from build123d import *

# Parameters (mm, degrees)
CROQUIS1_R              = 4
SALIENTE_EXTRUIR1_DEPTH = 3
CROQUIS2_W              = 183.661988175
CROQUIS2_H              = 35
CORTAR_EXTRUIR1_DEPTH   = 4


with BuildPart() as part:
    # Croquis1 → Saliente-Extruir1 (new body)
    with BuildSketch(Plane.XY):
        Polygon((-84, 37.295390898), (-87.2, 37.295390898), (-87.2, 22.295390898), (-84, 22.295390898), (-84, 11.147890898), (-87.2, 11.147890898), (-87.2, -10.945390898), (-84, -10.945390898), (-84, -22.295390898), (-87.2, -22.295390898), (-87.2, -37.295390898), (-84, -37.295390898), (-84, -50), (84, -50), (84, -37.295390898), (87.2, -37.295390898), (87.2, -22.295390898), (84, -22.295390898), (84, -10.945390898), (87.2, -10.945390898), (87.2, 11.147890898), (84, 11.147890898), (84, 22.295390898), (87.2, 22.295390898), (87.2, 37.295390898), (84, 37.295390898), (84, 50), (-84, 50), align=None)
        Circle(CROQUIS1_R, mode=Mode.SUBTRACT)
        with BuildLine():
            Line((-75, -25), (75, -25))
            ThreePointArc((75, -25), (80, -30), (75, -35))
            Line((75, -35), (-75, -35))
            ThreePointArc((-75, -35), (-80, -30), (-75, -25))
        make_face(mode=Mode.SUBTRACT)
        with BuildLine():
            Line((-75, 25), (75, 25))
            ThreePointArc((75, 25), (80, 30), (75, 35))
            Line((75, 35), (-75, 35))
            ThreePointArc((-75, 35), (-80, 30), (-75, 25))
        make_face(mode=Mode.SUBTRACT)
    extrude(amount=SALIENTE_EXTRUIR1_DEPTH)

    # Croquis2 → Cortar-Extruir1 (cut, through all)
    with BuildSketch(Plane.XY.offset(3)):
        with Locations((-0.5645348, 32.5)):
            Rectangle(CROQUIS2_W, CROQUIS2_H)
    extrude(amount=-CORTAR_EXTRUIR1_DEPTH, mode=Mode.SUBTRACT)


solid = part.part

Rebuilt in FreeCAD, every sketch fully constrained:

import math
import FreeCAD as App
import Part
import Sketcher

V = App.Vector


def add_polygon(sketch, points):
    """Adds a closed chain of lines whose ends are joined by coincident constraints."""
    first, n = sketch.GeometryCount, len(points)
    for a, b in zip(points, points[1:] + points[:1]):
        sketch.addGeometry(Part.LineSegment(App.Vector(*a, 0), App.Vector(*b, 0)), False)
    for i in range(n):
        sketch.addConstraint(Sketcher.Constraint("Coincident", first + i, 2, first + (i + 1) % n, 1))

doc = App.newDocument("Part")
body = doc.addObject("PartDesign::Body", "Body")

sketch1 = body.newObject("Sketcher::SketchObject", "Sketch")
sketch1.AttachmentSupport = (doc.getObject("XY_Plane"), [""])
sketch1.MapMode = "FlatFace"
add_polygon(sketch1, [(-84, 37.3), (-87.2, 37.3), (-87.2, 22.3), (-84, 22.3), (-84, 11.1), (-87.2, 11.1), (-87.2, -10.9), (-84, -10.9), (-84, -22.3), (-87.2, -22.3), (-87.2, -37.3), (-84, -37.3), (-84, -50), (84, -50), (84, -37.3), (87.2, -37.3), (87.2, -22.3), (84, -22.3), (84, -10.9), (87.2, -10.9), (87.2, 11.1), (84, 11.1), (84, 22.3), (87.2, 22.3), (87.2, 37.3), (84, 37.3), (84, 50), (-84, 50)])
sketch1.addGeometry(Part.ArcOfCircle(Part.Circle(V(-75, -30, 0), V(0, 0, 1), 5), math.radians(90), math.radians(270)), False)
sketch1.addGeometry(Part.LineSegment(V(-75, -25, 0), V(75, -25, 0)), False)
sketch1.addGeometry(Part.ArcOfCircle(Part.Circle(V(75, -30, 0), V(0, 0, 1), 5), math.radians(-90), math.radians(90)), False)
sketch1.addGeometry(Part.LineSegment(V(75, -35, 0), V(-75, -35, 0)), False)
sketch1.addGeometry(Part.Circle(V(0, 0, 0), V(0, 0, 1), 4), False)
sketch1.addGeometry(Part.LineSegment(V(75, 25, 0), V(-75, 25, 0)), False)
sketch1.addGeometry(Part.ArcOfCircle(Part.Circle(V(-75, 30, 0), V(0, 0, 1), 5), math.radians(90), math.radians(270)), False)
sketch1.addGeometry(Part.LineSegment(V(-75, 35, 0), V(75, 35, 0)), False)
sketch1.addGeometry(Part.ArcOfCircle(Part.Circle(V(75, 30, 0), V(0, 0, 1), 5), math.radians(-90), math.radians(90)), False)
sketch1.addConstraint(Sketcher.Constraint("Tangent", 28, 1, 29, 1))
sketch1.addConstraint(Sketcher.Constraint("Tangent", 29, 2, 30, 2))
sketch1.addConstraint(Sketcher.Constraint("Tangent", 30, 1, 31, 1))
sketch1.addConstraint(Sketcher.Constraint("Tangent", 31, 2, 28, 2))
sketch1.addConstraint(Sketcher.Constraint("Tangent", 33, 2, 34, 2))
sketch1.addConstraint(Sketcher.Constraint("Tangent", 34, 1, 35, 1))
sketch1.addConstraint(Sketcher.Constraint("Tangent", 35, 2, 36, 2))
sketch1.addConstraint(Sketcher.Constraint("Tangent", 36, 1, 33, 1))
sketch1.addConstraint(Sketcher.Constraint("Horizontal", 0))
sketch1.addConstraint(Sketcher.Constraint("Vertical", 1))
sketch1.addConstraint(Sketcher.Constraint("Horizontal", 2))
sketch1.addConstraint(Sketcher.Constraint("Vertical", 3))
sketch1.addConstraint(Sketcher.Constraint("Horizontal", 4))
sketch1.addConstraint(Sketcher.Constraint("Vertical", 5))
sketch1.addConstraint(Sketcher.Constraint("Horizontal", 6))
sketch1.addConstraint(Sketcher.Constraint("Vertical", 7))
sketch1.addConstraint(Sketcher.Constraint("Horizontal", 8))
sketch1.addConstraint(Sketcher.Constraint("Vertical", 9))
sketch1.addConstraint(Sketcher.Constraint("Horizontal", 10))
sketch1.addConstraint(Sketcher.Constraint("Vertical", 11))
sketch1.addConstraint(Sketcher.Constraint("Horizontal", 12))
sketch1.addConstraint(Sketcher.Constraint("Vertical", 13))
sketch1.addConstraint(Sketcher.Constraint("Horizontal", 14))
sketch1.addConstraint(Sketcher.Constraint("Vertical", 15))
sketch1.addConstraint(Sketcher.Constraint("Horizontal", 16))
sketch1.addConstraint(Sketcher.Constraint("Vertical", 17))
sketch1.addConstraint(Sketcher.Constraint("Horizontal", 18))
sketch1.addConstraint(Sketcher.Constraint("Vertical", 19))
sketch1.addConstraint(Sketcher.Constraint("Horizontal", 20))
sketch1.addConstraint(Sketcher.Constraint("Vertical", 21))
sketch1.addConstraint(Sketcher.Constraint("Horizontal", 22))
sketch1.addConstraint(Sketcher.Constraint("Vertical", 23))
sketch1.addConstraint(Sketcher.Constraint("Horizontal", 24))
sketch1.addConstraint(Sketcher.Constraint("Vertical", 25))
sketch1.addConstraint(Sketcher.Constraint("Horizontal", 26))
sketch1.addConstraint(Sketcher.Constraint("Vertical", 27))
sketch1.addConstraint(Sketcher.Constraint("Horizontal", 29))
sketch1.addConstraint(Sketcher.Constraint("Horizontal", 31))
sketch1.addConstraint(Sketcher.Constraint("Horizontal", 33))
sketch1.addConstraint(Sketcher.Constraint("Horizontal", 35))
sketch1.addConstraint(Sketcher.Constraint("Coincident", 32, 3, -1, 1))
sketch1.addConstraint(Sketcher.Constraint("Equal", 30, 34))
sketch1.addConstraint(Sketcher.Constraint("Symmetric", 30, 3, 34, 3, -1, 1))
sketch1.addConstraint(Sketcher.Constraint("Symmetric", 0, 2, 14, 2, -1, 1))
sketch1.addConstraint(Sketcher.Constraint("Symmetric", 2, 2, 16, 2, -1, 1))
sketch1.addConstraint(Sketcher.Constraint("Symmetric", 7, 2, 21, 2, -1, 1))
sketch1.addConstraint(Sketcher.Constraint("Symmetric", 9, 2, 23, 2, -1, 1))
sketch1.addConstraint(Sketcher.Constraint("Symmetric", 11, 2, 25, 2, -1, 1))
sketch1.addConstraint(Sketcher.Constraint("Symmetric", 10, 2, 13, 2, -2))
sketch1.addConstraint(Sketcher.Constraint("Symmetric", 8, 2, 15, 2, -2))
sketch1.addConstraint(Sketcher.Constraint("Symmetric", 6, 2, 17, 2, -2))
sketch1.addConstraint(Sketcher.Constraint("Symmetric", 4, 2, 19, 2, -2))
sketch1.addConstraint(Sketcher.Constraint("Vertical", 28, 3, 34, 3))
sketch1.addConstraint(Sketcher.Constraint("Vertical", 30, 3, 36, 3))
sketch1.addConstraint(Sketcher.Constraint("Vertical", 1, 2, 4, 2))
sketch1.addConstraint(Sketcher.Constraint("Vertical", 7, 2, 10, 2))
sketch1.addConstraint(Sketcher.Constraint("Vertical", 11, 2, 26, 2))
sketch1.addConstraint(Sketcher.Constraint("Diameter", 32, 8.0))
sketch1.addConstraint(Sketcher.Constraint("Radius", 28, 5.0))
sketch1.addConstraint(Sketcher.Constraint("DistanceX", 12, 1, 12, 2, 168.0))
sketch1.addConstraint(Sketcher.Constraint("DistanceX", 29, 1, 29, 2, 150.0))
sketch1.addConstraint(Sketcher.Constraint("DistanceY", 1, 2, 1, 1, 15.0))
sketch1.addConstraint(Sketcher.Constraint("DistanceX", 0, 2, 0, 1, 3.2))
sketch1.addConstraint(Sketcher.Constraint("DistanceY", 28, 3, -1, 1, 30.0))
sketch1.addConstraint(Sketcher.Constraint("DistanceY", 11, 2, -1, 1, 50.0))
sketch1.addConstraint(Sketcher.Constraint("DistanceY", 7, 2, 7, 1, 11.35))
sketch1.addConstraint(Sketcher.Constraint("DistanceY", 3, 2, 3, 1, 11.1475))
sketch1.addConstraint(Sketcher.Constraint("DistanceY", 5, 2, 5, 1, 22.093282))
pad1 = body.newObject("PartDesign::Pad", "Pad")
pad1.Profile = sketch1
pad1.Length = 3

sketch2 = body.newObject("Sketcher::SketchObject", "Sketch001")
sketch2.AttachmentSupport = (doc.getObject("XY_Plane"), [""])
sketch2.MapMode = "FlatFace"
sketch2.AttachmentOffset = App.Placement(V(0, 0, 3), App.Rotation())
add_polygon(sketch2, [(-92, 50), (-92, 15), (91, 15), (91, 50)])
sketch2.addConstraint(Sketcher.Constraint("Vertical", 0))
sketch2.addConstraint(Sketcher.Constraint("Horizontal", 1))
sketch2.addConstraint(Sketcher.Constraint("Vertical", 2))
sketch2.addConstraint(Sketcher.Constraint("Horizontal", 3))
sketch2.addConstraint(Sketcher.Constraint("DistanceY", 0, 2, 0, 1, 35.0))
sketch2.addConstraint(Sketcher.Constraint("DistanceY", -1, 1, 0, 2, 15.0))
sketch2.addConstraint(Sketcher.Constraint("DistanceX", 1, 1, 1, 2, 183.661988))
sketch2.addConstraint(Sketcher.Constraint("DistanceX", 0, 2, -1, 1, 92.395529))
pocket1 = body.newObject("PartDesign::Pocket", "Pocket")
pocket1.Profile = sketch2
pocket1.Type = "ThroughAll"

doc.recompute()
